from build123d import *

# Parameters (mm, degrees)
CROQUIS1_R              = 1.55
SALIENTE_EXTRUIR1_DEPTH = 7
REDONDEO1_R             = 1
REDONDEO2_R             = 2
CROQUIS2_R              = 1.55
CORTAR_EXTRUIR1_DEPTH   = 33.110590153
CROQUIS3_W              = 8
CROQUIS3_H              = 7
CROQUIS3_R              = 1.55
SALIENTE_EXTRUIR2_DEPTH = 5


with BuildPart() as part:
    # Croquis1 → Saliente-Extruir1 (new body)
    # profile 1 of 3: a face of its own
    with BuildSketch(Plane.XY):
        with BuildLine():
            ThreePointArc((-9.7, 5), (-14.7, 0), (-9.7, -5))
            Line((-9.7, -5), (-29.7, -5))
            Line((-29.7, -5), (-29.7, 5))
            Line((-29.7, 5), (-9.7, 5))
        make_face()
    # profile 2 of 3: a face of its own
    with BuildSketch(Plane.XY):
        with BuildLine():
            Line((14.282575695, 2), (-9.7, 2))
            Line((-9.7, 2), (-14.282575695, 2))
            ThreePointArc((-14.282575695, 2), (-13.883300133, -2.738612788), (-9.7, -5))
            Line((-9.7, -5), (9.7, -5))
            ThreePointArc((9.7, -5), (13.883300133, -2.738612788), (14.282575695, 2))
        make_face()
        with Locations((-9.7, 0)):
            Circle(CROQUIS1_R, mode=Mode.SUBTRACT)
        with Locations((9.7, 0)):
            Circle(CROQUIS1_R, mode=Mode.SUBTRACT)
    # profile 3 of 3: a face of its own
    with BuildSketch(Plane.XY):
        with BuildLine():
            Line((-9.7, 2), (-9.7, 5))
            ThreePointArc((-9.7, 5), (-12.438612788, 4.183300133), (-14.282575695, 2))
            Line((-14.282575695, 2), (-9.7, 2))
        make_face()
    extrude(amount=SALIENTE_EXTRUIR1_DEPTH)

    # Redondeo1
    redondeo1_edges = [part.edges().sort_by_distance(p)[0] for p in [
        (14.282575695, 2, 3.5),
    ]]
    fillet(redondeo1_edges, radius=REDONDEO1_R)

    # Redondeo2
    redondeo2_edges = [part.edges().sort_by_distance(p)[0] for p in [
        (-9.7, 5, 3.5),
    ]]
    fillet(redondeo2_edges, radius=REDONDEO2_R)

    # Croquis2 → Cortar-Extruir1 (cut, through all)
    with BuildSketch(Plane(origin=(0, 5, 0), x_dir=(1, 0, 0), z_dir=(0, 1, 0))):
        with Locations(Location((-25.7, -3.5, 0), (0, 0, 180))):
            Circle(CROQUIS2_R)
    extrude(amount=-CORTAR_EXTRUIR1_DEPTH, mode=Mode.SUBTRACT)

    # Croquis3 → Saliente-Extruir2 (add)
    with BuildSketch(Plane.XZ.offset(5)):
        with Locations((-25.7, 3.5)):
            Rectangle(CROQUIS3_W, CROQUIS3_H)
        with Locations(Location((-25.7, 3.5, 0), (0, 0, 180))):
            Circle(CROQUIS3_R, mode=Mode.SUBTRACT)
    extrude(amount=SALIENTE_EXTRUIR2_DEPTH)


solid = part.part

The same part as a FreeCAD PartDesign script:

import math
import FreeCAD as App
import Part
import Sketcher
Q = App.Units.Quantity


def edges_at(feature, points):
    """Names of the edges that pass closest to the given points."""
    edges = feature.Shape.Edges
    near = lambda p: min(range(len(edges)), key=lambda i: edges[i].distToShape(Part.Vertex(*p))[0])
    return sorted({f"Edge{near(p) + 1}" for p in points})


def add_polygon(sketch, points):
    """Adds a closed chain of lines whose ends are joined by coincident constraints."""
    first, n = sketch.GeometryCount, len(points)
    for a, b in zip(points, points[1:] + points[:1]):
        sketch.addGeometry(Part.LineSegment(App.Vector(*a, 0), App.Vector(*b, 0)), False)
    for i in range(n):
        sketch.addConstraint(Sketcher.Constraint("Coincident", first + i, 2, first + (i + 1) % n, 1))

doc = App.newDocument("Part")
body = doc.addObject("PartDesign::Body", "Body")

# Sketch on XY plane
sketch1 = body.newObject("Sketcher::SketchObject", "Sketch")
sketch1.AttachmentSupport = (doc.getObject("XY_Plane"), [""])
sketch1.MapMode = "FlatFace"
sketch1.addGeometry([
    Part.LineSegment(App.Vector(-29.7, -5, 0), App.Vector(9.7, -5, 0)),  # 0
    Part.ArcOfCircle(Part.Circle(App.Vector(9.7, 0, 0), App.Vector(0, 0, 1), 5), math.radians(-90), math.radians(23.578178)),  # 1
    Part.LineSegment(App.Vector(14.282576, 2, 0), App.Vector(-9.7, 2, 0)),  # 2
    Part.LineSegment(App.Vector(-9.7, 2, 0), App.Vector(-9.7, 5, 0)),  # 3
    Part.LineSegment(App.Vector(-9.7, 5, 0), App.Vector(-29.7, 5, 0)),  # 4
    Part.LineSegment(App.Vector(-29.7, 5, 0), App.Vector(-29.7, -5, 0)),  # 5
    Part.Circle(App.Vector(-9.7, 0, 0), App.Vector(0, 0, 1), 1.55),  # 6
    Part.Circle(App.Vector(9.7, 0, 0), App.Vector(0, 0, 1), 1.55),  # 7
], False)
sketch1.addConstraint([
    Sketcher.Constraint("Tangent", 0, 2, 1, 1),
    Sketcher.Constraint("Coincident", 1, 2, 2, 1),
    Sketcher.Constraint("Coincident", 2, 2, 3, 1),
    Sketcher.Constraint("Coincident", 3, 2, 4, 1),
    Sketcher.Constraint("Coincident", 4, 2, 5, 1),
    Sketcher.Constraint("Coincident", 5, 2, 0, 1),
    Sketcher.Constraint("Horizontal", 0),
    Sketcher.Constraint("Horizontal", 2),
    Sketcher.Constraint("Vertical", 3),
    Sketcher.Constraint("Horizontal", 4),
    Sketcher.Constraint("Vertical", 5),
    Sketcher.Constraint("Coincident", 7, 3, 1, 3),
    Sketcher.Constraint("Equal", 6, 7),
    Sketcher.Constraint("Symmetric", 1, 3, 6, 3, -1, 1),
    Sketcher.Constraint("Symmetric", 0, 2, 3, 2, -1, 1),
    Sketcher.Constraint("PointOnObject", 1, 3, -1),
    Sketcher.Constraint("Radius", 1, Q("5 mm")),
    Sketcher.Constraint("Diameter", 6, Q("3.1 mm")),
    Sketcher.Constraint("DistanceX", 4, 2, 4, 1, Q("20 mm")),
    Sketcher.Constraint("DistanceY", 3, 1, 3, 2, Q("3 mm")),
    Sketcher.Constraint("DistanceX", 0, 1, 0, 2, Q("39.4 mm")),
])
pad1 = body.newObject("PartDesign::Pad", "Pad")
pad1.Profile = sketch1
pad1.Length = 7
doc.recompute()

fillet = body.newObject("PartDesign::Fillet", "Fillet")
fillet.Base = (pad1, edges_at(pad1, [(14.283, 2, 3.5)]))
fillet.Radius = 1
doc.recompute()

fillet2 = body.newObject("PartDesign::Fillet", "Fillet001")
fillet2.Base = (fillet, edges_at(fillet, [(-9.7, 5, 3.5)]))
fillet2.Radius = 2

# Sketch on XZ plane
sketch2 = body.newObject("Sketcher::SketchObject", "Sketch001")
sketch2.AttachmentSupport = (doc.getObject("XZ_Plane"), [""])
sketch2.MapMode = "FlatFace"
sketch2.AttachmentOffset = App.Placement(App.Vector(0, 0, -5), App.Rotation())
sketch2.addGeometry(Part.Circle(App.Vector(-25.7, 3.5, 0), App.Vector(0, 0, 1), 1.55), False)
sketch2.addConstraint([
    Sketcher.Constraint("Diameter", 0, Q("3.1 mm")),
    Sketcher.Constraint("DistanceX", 0, 3, -1, 1, Q("25.7 mm")),
    Sketcher.Constraint("DistanceY", -1, 1, 0, 3, Q("3.5 mm")),
])
pocket1 = body.newObject("PartDesign::Pocket", "Pocket")
pocket1.Profile = sketch2
pocket1.Type = "ThroughAll"
pocket1.Reversed = True

# Sketch on XZ plane
sketch3 = body.newObject("Sketcher::SketchObject", "Sketch002")
sketch3.AttachmentSupport = (doc.getObject("XZ_Plane"), [""])
sketch3.MapMode = "FlatFace"
sketch3.AttachmentOffset = App.Placement(App.Vector(0, 0, 5), App.Rotation())
add_polygon(sketch3, [(-29.7, 7), (-29.7, 0), (-21.7, 0), (-21.7, 7)])  # lines 0-3
sketch3.addGeometry(Part.Circle(App.Vector(-25.7, 3.5, 0), App.Vector(0, 0, 1), 1.55), False)  # 4
sketch3.addConstraint([
    Sketcher.Constraint("Vertical", 0),
    Sketcher.Constraint("Horizontal", 1),
    Sketcher.Constraint("Vertical", 2),
    Sketcher.Constraint("Horizontal", 3),
    Sketcher.Constraint("PointOnObject", 0, 2, -1),
    Sketcher.Constraint("Diameter", 4, Q("3.1 mm")),
    Sketcher.Constraint("DistanceX", 1, 1, 1, 2, Q("8 mm")),
    Sketcher.Constraint("DistanceY", 0, 2, 0, 1, Q("7 mm")),
    Sketcher.Constraint("DistanceX", 0, 2, 4, 3, Q("4 mm")),
    Sketcher.Constraint("DistanceX", 4, 3, -1, 1, Q("25.7 mm")),
    Sketcher.Constraint("DistanceY", -1, 1, 4, 3, Q("3.5 mm")),
])
pad2 = body.newObject("PartDesign::Pad", "Pad001")
pad2.Profile = sketch3
pad2.Length = 5

doc.recompute()
